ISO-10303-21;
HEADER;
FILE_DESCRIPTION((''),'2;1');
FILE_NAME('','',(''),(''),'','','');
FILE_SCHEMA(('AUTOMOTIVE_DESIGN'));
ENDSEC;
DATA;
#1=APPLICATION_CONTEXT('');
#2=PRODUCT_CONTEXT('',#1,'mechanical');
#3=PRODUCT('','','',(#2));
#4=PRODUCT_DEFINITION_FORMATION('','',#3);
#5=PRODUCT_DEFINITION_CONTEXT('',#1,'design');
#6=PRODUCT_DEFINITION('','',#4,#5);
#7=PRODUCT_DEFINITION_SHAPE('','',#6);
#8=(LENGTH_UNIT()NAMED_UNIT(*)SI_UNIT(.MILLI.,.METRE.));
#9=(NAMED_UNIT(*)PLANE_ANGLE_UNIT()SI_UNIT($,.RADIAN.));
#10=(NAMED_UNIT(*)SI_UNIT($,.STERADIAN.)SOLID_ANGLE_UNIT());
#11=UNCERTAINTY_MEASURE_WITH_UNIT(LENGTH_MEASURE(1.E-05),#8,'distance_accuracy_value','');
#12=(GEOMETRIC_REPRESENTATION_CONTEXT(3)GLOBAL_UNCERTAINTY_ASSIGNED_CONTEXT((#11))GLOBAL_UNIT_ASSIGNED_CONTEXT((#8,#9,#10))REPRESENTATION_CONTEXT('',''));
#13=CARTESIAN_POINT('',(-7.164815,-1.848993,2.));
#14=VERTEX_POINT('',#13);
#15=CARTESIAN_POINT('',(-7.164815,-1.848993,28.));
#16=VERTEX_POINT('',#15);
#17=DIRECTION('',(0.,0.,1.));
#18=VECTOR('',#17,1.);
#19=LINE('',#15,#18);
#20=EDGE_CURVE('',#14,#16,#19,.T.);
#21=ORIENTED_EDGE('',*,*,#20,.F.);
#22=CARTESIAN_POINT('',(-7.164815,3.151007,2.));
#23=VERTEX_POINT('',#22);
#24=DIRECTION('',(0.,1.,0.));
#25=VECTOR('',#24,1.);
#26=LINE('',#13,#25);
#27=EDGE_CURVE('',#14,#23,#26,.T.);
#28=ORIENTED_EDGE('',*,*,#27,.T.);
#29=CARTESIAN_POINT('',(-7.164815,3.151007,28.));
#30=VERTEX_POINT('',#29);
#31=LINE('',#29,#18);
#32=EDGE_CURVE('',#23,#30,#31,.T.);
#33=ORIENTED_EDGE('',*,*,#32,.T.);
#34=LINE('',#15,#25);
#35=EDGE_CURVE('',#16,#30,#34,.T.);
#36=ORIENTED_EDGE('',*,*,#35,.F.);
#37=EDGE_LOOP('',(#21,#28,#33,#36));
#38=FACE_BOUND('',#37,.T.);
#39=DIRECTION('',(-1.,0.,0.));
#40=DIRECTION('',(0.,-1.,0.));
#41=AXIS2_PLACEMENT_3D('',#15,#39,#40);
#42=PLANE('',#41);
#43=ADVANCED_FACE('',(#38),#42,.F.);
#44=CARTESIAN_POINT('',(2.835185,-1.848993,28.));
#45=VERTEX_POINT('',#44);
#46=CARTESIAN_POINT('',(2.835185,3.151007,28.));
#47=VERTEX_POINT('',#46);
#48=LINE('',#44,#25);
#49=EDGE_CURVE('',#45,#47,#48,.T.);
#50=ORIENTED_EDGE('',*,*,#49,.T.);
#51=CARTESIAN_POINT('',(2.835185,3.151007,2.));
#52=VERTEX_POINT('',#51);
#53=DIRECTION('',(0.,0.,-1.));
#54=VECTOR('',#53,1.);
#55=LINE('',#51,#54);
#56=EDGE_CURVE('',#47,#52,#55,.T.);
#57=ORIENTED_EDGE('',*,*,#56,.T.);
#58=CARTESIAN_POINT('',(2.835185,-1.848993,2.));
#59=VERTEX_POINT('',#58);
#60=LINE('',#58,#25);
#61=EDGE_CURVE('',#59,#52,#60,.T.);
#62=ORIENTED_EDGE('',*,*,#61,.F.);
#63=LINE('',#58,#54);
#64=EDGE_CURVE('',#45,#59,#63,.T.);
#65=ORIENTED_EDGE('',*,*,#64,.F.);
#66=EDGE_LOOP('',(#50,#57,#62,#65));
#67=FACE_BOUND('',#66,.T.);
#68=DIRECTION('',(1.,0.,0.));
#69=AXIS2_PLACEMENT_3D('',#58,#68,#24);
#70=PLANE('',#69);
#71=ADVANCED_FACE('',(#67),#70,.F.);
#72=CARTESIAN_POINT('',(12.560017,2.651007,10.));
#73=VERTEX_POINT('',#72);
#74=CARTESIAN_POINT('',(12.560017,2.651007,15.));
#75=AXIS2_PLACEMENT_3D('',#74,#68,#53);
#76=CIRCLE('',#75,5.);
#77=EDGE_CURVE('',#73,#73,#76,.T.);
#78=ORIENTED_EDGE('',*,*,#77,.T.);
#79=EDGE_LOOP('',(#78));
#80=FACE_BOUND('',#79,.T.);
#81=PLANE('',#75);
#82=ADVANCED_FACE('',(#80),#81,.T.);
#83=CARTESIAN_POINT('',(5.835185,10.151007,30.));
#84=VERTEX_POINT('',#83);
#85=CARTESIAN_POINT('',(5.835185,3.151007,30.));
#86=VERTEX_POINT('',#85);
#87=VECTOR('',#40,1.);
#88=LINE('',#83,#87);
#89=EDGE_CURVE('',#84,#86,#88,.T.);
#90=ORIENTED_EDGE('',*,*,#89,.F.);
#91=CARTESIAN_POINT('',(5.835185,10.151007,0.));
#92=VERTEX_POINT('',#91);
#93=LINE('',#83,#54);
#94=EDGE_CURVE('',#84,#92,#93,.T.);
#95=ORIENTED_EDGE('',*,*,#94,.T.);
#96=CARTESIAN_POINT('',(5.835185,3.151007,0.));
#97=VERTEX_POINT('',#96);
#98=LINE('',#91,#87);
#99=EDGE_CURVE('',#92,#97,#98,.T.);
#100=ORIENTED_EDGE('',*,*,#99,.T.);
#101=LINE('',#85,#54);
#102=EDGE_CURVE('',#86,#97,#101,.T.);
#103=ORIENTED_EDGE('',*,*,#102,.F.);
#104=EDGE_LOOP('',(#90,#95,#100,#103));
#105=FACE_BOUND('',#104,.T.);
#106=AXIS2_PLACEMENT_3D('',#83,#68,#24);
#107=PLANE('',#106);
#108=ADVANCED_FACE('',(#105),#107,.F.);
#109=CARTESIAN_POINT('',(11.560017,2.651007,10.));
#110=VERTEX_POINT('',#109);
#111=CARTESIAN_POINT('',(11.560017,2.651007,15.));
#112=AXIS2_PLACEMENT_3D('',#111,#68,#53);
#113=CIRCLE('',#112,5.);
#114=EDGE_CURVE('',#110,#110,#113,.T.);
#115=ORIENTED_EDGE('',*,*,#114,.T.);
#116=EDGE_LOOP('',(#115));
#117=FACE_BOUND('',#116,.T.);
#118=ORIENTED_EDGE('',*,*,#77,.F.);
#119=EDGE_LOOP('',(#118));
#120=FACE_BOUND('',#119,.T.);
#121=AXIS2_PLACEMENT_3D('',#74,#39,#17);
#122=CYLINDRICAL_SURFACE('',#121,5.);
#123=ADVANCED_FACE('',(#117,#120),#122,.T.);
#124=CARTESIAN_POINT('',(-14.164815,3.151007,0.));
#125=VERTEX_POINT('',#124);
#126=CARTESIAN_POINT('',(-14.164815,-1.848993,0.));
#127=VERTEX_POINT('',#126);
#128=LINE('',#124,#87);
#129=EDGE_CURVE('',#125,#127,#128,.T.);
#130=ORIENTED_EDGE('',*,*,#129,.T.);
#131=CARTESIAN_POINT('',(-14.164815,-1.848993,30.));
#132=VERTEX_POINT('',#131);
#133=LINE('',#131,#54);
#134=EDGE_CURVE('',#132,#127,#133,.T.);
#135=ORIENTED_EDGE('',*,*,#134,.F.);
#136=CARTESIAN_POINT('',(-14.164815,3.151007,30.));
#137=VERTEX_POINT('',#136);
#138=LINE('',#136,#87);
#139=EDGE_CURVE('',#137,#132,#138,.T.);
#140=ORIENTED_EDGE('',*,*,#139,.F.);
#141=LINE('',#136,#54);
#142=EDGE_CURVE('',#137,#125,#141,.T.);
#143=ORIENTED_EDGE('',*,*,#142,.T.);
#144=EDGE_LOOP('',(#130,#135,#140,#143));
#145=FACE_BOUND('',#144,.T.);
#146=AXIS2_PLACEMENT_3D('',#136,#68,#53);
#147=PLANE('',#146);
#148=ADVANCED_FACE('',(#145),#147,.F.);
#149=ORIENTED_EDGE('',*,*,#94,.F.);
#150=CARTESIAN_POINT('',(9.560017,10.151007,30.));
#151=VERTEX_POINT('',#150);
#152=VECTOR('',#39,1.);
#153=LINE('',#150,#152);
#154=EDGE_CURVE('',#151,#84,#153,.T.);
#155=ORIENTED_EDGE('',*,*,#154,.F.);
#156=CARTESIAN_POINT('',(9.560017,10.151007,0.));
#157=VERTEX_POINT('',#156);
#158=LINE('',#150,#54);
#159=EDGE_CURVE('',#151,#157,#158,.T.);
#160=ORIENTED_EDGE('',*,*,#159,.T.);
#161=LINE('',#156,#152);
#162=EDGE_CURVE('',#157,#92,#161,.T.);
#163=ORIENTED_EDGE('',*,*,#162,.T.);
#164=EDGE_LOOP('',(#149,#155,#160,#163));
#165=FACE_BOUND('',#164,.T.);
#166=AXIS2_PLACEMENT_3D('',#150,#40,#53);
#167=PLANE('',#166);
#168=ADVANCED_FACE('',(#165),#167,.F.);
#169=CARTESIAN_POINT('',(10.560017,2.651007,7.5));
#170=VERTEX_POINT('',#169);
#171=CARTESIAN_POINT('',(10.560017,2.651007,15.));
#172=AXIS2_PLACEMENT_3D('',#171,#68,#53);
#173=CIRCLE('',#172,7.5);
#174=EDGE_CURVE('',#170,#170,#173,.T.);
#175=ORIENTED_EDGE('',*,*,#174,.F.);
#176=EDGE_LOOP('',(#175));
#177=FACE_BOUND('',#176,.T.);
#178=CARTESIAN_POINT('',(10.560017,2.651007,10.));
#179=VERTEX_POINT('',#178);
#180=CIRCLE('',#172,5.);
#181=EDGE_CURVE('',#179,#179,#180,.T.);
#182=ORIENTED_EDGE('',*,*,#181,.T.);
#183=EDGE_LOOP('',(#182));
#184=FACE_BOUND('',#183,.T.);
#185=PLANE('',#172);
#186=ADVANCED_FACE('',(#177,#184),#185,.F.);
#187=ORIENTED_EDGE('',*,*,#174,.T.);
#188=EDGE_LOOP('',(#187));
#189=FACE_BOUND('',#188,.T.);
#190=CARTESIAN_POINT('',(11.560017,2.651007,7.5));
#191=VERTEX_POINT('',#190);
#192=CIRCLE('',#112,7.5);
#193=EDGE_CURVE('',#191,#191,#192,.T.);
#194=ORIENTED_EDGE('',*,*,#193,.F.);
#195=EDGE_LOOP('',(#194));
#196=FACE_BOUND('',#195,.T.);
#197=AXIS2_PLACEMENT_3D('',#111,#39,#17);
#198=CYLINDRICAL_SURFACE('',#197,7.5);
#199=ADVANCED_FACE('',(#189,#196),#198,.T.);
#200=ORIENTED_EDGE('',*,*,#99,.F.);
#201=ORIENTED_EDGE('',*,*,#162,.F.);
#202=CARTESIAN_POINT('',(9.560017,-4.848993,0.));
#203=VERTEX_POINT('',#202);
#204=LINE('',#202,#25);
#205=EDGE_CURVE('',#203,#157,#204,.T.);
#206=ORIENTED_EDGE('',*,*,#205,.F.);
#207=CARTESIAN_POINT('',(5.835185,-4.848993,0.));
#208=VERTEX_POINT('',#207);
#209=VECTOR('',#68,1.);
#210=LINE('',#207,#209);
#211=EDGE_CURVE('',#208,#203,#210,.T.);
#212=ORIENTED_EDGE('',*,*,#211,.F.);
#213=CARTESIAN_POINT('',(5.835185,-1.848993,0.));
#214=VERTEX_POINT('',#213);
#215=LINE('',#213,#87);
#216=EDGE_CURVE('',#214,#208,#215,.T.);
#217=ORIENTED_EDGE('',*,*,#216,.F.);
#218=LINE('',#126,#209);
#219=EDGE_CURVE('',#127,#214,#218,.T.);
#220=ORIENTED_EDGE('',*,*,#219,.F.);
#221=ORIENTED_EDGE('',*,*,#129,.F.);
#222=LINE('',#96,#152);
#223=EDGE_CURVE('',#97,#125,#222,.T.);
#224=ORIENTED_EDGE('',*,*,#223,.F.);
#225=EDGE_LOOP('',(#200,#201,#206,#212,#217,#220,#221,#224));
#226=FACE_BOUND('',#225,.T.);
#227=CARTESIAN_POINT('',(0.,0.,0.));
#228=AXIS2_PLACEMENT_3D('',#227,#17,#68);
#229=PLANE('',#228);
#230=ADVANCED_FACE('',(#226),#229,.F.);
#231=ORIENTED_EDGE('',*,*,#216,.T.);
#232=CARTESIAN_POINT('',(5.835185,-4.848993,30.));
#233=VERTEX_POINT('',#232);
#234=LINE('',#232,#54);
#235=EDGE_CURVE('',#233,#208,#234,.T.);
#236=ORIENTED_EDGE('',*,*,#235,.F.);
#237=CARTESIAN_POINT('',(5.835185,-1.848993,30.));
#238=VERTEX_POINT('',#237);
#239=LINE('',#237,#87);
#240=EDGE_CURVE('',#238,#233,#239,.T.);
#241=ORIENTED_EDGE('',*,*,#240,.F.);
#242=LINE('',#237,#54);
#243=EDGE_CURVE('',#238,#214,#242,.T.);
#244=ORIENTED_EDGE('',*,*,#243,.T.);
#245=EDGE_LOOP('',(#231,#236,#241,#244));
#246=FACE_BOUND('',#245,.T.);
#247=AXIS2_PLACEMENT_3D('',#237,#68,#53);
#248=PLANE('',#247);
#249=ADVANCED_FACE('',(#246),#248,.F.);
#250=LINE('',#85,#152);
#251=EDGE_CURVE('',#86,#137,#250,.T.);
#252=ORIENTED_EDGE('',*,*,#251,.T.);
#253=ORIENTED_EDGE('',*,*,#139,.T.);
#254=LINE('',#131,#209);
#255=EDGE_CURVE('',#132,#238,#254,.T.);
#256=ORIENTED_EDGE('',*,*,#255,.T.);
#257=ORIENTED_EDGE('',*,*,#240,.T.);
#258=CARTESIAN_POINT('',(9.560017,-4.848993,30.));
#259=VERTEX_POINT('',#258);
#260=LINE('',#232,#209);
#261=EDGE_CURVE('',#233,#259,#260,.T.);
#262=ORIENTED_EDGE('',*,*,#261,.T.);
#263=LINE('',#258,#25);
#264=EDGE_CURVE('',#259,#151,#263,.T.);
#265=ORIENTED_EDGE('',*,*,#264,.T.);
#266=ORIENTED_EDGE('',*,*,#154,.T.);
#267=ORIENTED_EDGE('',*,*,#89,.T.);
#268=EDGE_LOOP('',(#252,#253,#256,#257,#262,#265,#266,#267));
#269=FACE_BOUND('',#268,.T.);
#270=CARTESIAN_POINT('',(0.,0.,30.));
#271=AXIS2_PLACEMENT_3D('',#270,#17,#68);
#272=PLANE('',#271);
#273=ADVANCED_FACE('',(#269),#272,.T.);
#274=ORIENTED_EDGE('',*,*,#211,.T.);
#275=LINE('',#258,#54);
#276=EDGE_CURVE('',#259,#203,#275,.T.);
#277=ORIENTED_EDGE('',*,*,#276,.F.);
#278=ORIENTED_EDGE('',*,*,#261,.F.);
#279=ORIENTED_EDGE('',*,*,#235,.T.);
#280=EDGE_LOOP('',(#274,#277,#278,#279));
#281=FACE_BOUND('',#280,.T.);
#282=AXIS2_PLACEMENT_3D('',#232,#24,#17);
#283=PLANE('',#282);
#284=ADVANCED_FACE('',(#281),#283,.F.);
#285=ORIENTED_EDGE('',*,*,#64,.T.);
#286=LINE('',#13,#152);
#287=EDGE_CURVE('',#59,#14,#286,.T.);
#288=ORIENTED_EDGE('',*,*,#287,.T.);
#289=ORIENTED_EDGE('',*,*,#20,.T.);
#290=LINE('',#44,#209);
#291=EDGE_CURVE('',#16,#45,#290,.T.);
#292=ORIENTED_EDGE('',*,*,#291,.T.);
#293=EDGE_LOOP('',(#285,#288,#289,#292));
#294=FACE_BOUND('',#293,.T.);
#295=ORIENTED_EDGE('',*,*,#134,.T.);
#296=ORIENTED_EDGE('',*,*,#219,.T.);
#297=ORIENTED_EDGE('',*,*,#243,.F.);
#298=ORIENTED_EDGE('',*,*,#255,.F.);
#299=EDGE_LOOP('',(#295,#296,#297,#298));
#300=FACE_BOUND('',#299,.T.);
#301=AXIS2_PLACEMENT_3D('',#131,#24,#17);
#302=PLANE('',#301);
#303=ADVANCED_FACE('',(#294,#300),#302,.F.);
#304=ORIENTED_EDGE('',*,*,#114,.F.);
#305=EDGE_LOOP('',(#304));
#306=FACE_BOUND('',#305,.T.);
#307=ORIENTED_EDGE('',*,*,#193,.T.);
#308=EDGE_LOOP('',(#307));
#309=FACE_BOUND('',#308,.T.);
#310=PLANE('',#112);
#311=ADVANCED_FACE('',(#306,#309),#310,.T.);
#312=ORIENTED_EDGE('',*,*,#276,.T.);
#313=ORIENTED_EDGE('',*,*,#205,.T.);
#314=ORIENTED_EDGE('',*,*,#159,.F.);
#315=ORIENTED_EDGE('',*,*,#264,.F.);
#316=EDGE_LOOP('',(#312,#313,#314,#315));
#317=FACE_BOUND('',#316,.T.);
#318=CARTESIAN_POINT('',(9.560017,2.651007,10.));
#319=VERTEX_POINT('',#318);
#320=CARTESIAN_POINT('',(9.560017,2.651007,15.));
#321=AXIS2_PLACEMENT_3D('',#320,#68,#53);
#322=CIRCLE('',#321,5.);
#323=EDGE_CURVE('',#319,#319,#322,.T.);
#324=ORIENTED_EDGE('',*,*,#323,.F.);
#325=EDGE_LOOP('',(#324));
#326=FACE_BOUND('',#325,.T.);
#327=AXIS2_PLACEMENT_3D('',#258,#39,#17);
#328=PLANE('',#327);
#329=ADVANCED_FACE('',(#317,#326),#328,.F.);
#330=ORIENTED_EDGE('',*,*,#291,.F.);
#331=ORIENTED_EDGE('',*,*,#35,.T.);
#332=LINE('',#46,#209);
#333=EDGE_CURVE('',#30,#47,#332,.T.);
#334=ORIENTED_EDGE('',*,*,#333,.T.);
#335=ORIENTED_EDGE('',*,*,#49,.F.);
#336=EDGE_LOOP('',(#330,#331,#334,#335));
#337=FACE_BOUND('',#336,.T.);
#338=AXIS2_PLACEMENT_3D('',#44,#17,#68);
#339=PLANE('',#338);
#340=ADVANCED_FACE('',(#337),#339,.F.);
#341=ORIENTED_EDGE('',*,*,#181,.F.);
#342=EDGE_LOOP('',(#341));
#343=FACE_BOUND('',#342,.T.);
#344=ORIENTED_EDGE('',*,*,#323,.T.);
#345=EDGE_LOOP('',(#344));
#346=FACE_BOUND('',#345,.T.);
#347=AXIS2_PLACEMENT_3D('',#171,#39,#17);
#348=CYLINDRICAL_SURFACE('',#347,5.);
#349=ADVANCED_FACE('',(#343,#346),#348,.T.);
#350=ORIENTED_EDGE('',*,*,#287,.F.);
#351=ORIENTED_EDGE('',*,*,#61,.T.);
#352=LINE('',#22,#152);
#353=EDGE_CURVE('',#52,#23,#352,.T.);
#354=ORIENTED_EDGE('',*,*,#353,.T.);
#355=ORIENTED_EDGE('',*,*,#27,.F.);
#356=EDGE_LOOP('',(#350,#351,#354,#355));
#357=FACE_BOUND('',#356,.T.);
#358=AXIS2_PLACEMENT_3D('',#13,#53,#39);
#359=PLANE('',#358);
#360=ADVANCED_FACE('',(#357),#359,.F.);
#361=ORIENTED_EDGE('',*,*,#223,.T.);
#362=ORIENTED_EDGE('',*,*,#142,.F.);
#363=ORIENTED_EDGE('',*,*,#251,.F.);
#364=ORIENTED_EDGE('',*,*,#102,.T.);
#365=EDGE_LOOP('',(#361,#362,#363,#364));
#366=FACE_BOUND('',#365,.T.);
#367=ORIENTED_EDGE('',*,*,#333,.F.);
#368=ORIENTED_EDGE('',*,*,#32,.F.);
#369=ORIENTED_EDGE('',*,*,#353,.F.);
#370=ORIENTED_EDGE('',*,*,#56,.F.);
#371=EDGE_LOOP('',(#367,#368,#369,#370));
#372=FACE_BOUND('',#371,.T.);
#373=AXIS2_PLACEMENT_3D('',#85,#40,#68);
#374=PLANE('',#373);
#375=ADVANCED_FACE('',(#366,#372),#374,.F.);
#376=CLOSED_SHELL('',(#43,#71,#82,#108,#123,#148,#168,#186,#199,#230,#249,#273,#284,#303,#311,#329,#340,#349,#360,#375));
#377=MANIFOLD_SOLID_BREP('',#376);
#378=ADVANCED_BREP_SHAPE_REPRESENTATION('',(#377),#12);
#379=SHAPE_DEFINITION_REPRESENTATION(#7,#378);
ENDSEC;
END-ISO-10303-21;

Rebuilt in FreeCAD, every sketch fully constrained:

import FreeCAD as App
import Part
import Sketcher
Q = App.Units.Quantity

doc = App.newDocument("Part")
params = doc.addObject("Spreadsheet::Sheet", "Params")
for row, (alias, value) in enumerate([
    ("sketch1_width", "20 mm"),
    ("sketch1_height", "5 mm"),
    ("sketch1_height2", "3 mm"),
    ("sketch1_height3", "15 mm"),
    ("pad1_length", "30 mm"),
    ("sketch2_width", "10 mm"),
    ("sketch2_height", "26 mm"),
    ("pocket1_length", "5 mm"),
    ("sketch3_diameter", "10 mm"),
    ("pad2_length", "1 mm"),
    ("sketch4_diameter", "15 mm"),
    ("pad3_length", "1 mm"),
    ("sketch5_diameter", "10 mm"),
    ("pad4_length", "1 mm"),
], start=1):
    params.set(f"A{row}", alias)
    params.set(f"B{row}", "=" + value)
    params.setAlias(f"B{row}", alias)

body = doc.addObject("PartDesign::Body", "Body")

sketch1 = body.newObject("Sketcher::SketchObject", "Sketch")
sketch1.AttachmentSupport = (doc.getObject("XY_Plane"), [""])
sketch1.MapMode = "FlatFace"
sketch1.addGeometry(Part.LineSegment(App.Vector(-14.2, 3.2, 0), App.Vector(-14.2, -1.8, 0)), False)
sketch1.addGeometry(Part.LineSegment(App.Vector(-14.2, -1.8, 0), App.Vector(5.8, -1.8, 0)), False)
sketch1.addGeometry(Part.LineSegment(App.Vector(5.8, -1.8, 0), App.Vector(5.8, -4.8, 0)), False)
sketch1.addGeometry(Part.LineSegment(App.Vector(5.8, -4.8, 0), App.Vector(9.6, -4.8, 0)), False)
sketch1.addGeometry(Part.LineSegment(App.Vector(9.6, -4.8, 0), App.Vector(9.6, 10.2, 0)), False)
sketch1.addGeometry(Part.LineSegment(App.Vector(9.6, 10.2, 0), App.Vector(5.8, 10.2, 0)), False)
sketch1.addGeometry(Part.LineSegment(App.Vector(5.8, 10.2, 0), App.Vector(5.8, 3.2, 0)), False)
sketch1.addGeometry(Part.LineSegment(App.Vector(5.8, 3.2, 0), App.Vector(-14.2, 3.2, 0)), False)
sketch1.addConstraint(Sketcher.Constraint("Coincident", 0, 2, 1, 1))
sketch1.addConstraint(Sketcher.Constraint("Coincident", 1, 2, 2, 1))
sketch1.addConstraint(Sketcher.Constraint("Coincident", 2, 2, 3, 1))
sketch1.addConstraint(Sketcher.Constraint("Coincident", 3, 2, 4, 1))
sketch1.addConstraint(Sketcher.Constraint("Coincident", 4, 2, 5, 1))
sketch1.addConstraint(Sketcher.Constraint("Coincident", 5, 2, 6, 1))
sketch1.addConstraint(Sketcher.Constraint("Coincident", 6, 2, 7, 1))
sketch1.addConstraint(Sketcher.Constraint("Coincident", 7, 2, 0, 1))
sketch1.addConstraint(Sketcher.Constraint("Vertical", 0))
sketch1.addConstraint(Sketcher.Constraint("Horizontal", 1))
sketch1.addConstraint(Sketcher.Constraint("Vertical", 2))
sketch1.addConstraint(Sketcher.Constraint("Horizontal", 3))
sketch1.addConstraint(Sketcher.Constraint("Vertical", 4))
sketch1.addConstraint(Sketcher.Constraint("Horizontal", 5))
sketch1.addConstraint(Sketcher.Constraint("Vertical", 6))
sketch1.addConstraint(Sketcher.Constraint("Horizontal", 7))
sketch1.addConstraint(Sketcher.Constraint("Vertical", 2, 2, 5, 2))
sketch1.addConstraint(Sketcher.Constraint("DistanceX", 1, 1, 1, 2, Q("20 mm")))
sketch1.addConstraint(Sketcher.Constraint("DistanceY", 0, 2, 0, 1, Q("5 mm")))
sketch1.addConstraint(Sketcher.Constraint("DistanceY", 2, 2, 2, 1, Q("3 mm")))
sketch1.addConstraint(Sketcher.Constraint("DistanceY", 4, 1, 4, 2, Q("15 mm")))
sketch1.addConstraint(Sketcher.Constraint("DistanceX", 3, 1, 3, 2, Q("3.724832 mm")))
sketch1.addConstraint(Sketcher.Constraint("DistanceX", 0, 2, -1, 1, Q("14.164815 mm")))
sketch1.addConstraint(Sketcher.Constraint("DistanceY", 0, 2, -1, 1, Q("1.848993 mm")))
sketch1.setExpression("Constraints[17]", "Params.sketch1_width")
sketch1.setExpression("Constraints[18]", "Params.sketch1_height")
sketch1.setExpression("Constraints[19]", "Params.sketch1_height2")
sketch1.setExpression("Constraints[20]", "Params.sketch1_height3")
pad1 = body.newObject("PartDesign::Pad", "Pad")
pad1.Profile = sketch1
pad1.setExpression("Length", "Params.pad1_length")

sketch2 = body.newObject("Sketcher::SketchObject", "Sketch001")
sketch2.AttachmentSupport = (doc.getObject("XZ_Plane"), [""])
sketch2.MapMode = "FlatFace"
sketch2.AttachmentOffset = App.Placement(App.Vector(0, 0, -3.151007), App.Rotation())
sketch2.addGeometry(Part.LineSegment(App.Vector(-7, 2, 0), App.Vector(-7, 28, 0)), False)
sketch2.addGeometry(Part.LineSegment(App.Vector(-7, 28, 0), App.Vector(3, 28, 0)), False)
sketch2.addGeometry(Part.LineSegment(App.Vector(3, 28, 0), App.Vector(3, 2, 0)), False)
sketch2.addGeometry(Part.LineSegment(App.Vector(3, 2, 0), App.Vector(-7, 2, 0)), False)
sketch2.addConstraint(Sketcher.Constraint("Coincident", 0, 2, 1, 1))
sketch2.addConstraint(Sketcher.Constraint("Coincident", 1, 2, 2, 1))
sketch2.addConstraint(Sketcher.Constraint("Coincident", 2, 2, 3, 1))
sketch2.addConstraint(Sketcher.Constraint("Coincident", 3, 2, 0, 1))
sketch2.addConstraint(Sketcher.Constraint("Vertical", 0))
sketch2.addConstraint(Sketcher.Constraint("Horizontal", 1))
sketch2.addConstraint(Sketcher.Constraint("Vertical", 2))
sketch2.addConstraint(Sketcher.Constraint("Horizontal", 3))
sketch2.addConstraint(Sketcher.Constraint("DistanceX", 1, 1, 1, 2, Q("10 mm")))
sketch2.addConstraint(Sketcher.Constraint("DistanceY", 0, 1, 0, 2, Q("26 mm")))
sketch2.addConstraint(Sketcher.Constraint("DistanceY", -1, 1, 0, 2, Q("28 mm")))
sketch2.addConstraint(Sketcher.Constraint("DistanceX", 0, 2, -1, 1, Q("7.164815 mm")))
sketch2.setExpression("Constraints[8]", "Params.sketch2_width")
sketch2.setExpression("Constraints[9]", "Params.sketch2_height")
pocket1 = body.newObject("PartDesign::Pocket", "Pocket")
pocket1.Profile = sketch2
pocket1.setExpression("Length", "Params.pocket1_length")
pocket1.Reversed = True

sketch3 = body.newObject("Sketcher::SketchObject", "Sketch002")
sketch3.AttachmentSupport = (doc.getObject("YZ_Plane"), [""])
sketch3.MapMode = "FlatFace"
sketch3.AttachmentOffset = App.Placement(App.Vector(0, 0, 9.560017), App.Rotation())
sketch3.addGeometry(Part.Circle(App.Vector(3, 15, 0), App.Vector(0, 0, 1), 5), False)
sketch3.addConstraint(Sketcher.Constraint("Diameter", 0, Q("10 mm")))
sketch3.addConstraint(Sketcher.Constraint("DistanceY", -1, 1, 0, 3, Q("15 mm")))
sketch3.addConstraint(Sketcher.Constraint("DistanceX", -1, 1, 0, 3, Q("2.651007 mm")))
sketch3.setExpression("Constraints[0]", "Params.sketch3_diameter")
pad2 = body.newObject("PartDesign::Pad", "Pad001")
pad2.Profile = sketch3
pad2.setExpression("Length", "Params.pad2_length")

sketch4 = body.newObject("Sketcher::SketchObject", "Sketch003")
sketch4.AttachmentSupport = (doc.getObject("YZ_Plane"), [""])
sketch4.MapMode = "FlatFace"
sketch4.AttachmentOffset = App.Placement(App.Vector(0, 0, 10.560017), App.Rotation())
sketch4.addGeometry(Part.Circle(App.Vector(3, 15, 0), App.Vector(0, 0, 1), 8), False)
sketch4.addConstraint(Sketcher.Constraint("Diameter", 0, Q("15 mm")))
sketch4.addConstraint(Sketcher.Constraint("DistanceY", -1, 1, 0, 3, Q("15 mm")))
sketch4.addConstraint(Sketcher.Constraint("DistanceX", -1, 1, 0, 3, Q("2.651007 mm")))
sketch4.setExpression("Constraints[0]", "Params.sketch4_diameter")
pad3 = body.newObject("PartDesign::Pad", "Pad002")
pad3.Profile = sketch4
pad3.setExpression("Length", "Params.pad3_length")

sketch5 = body.newObject("Sketcher::SketchObject", "Sketch004")
sketch5.AttachmentSupport = (doc.getObject("YZ_Plane"), [""])
sketch5.MapMode = "FlatFace"
sketch5.AttachmentOffset = App.Placement(App.Vector(0, 0, 11.560017), App.Rotation())
sketch5.addGeometry(Part.Circle(App.Vector(3, 15, 0), App.Vector(0, 0, 1), 5), False)
sketch5.addConstraint(Sketcher.Constraint("Diameter", 0, Q("10 mm")))
sketch5.addConstraint(Sketcher.Constraint("DistanceY", -1, 1, 0, 3, Q("15 mm")))
sketch5.addConstraint(Sketcher.Constraint("DistanceX", -1, 1, 0, 3, Q("2.651007 mm")))
sketch5.setExpression("Constraints[0]", "Params.sketch5_diameter")
pad4 = body.newObject("PartDesign::Pad", "Pad003")
pad4.Profile = sketch5
pad4.setExpression("Length", "Params.pad4_length")

doc.recompute()
